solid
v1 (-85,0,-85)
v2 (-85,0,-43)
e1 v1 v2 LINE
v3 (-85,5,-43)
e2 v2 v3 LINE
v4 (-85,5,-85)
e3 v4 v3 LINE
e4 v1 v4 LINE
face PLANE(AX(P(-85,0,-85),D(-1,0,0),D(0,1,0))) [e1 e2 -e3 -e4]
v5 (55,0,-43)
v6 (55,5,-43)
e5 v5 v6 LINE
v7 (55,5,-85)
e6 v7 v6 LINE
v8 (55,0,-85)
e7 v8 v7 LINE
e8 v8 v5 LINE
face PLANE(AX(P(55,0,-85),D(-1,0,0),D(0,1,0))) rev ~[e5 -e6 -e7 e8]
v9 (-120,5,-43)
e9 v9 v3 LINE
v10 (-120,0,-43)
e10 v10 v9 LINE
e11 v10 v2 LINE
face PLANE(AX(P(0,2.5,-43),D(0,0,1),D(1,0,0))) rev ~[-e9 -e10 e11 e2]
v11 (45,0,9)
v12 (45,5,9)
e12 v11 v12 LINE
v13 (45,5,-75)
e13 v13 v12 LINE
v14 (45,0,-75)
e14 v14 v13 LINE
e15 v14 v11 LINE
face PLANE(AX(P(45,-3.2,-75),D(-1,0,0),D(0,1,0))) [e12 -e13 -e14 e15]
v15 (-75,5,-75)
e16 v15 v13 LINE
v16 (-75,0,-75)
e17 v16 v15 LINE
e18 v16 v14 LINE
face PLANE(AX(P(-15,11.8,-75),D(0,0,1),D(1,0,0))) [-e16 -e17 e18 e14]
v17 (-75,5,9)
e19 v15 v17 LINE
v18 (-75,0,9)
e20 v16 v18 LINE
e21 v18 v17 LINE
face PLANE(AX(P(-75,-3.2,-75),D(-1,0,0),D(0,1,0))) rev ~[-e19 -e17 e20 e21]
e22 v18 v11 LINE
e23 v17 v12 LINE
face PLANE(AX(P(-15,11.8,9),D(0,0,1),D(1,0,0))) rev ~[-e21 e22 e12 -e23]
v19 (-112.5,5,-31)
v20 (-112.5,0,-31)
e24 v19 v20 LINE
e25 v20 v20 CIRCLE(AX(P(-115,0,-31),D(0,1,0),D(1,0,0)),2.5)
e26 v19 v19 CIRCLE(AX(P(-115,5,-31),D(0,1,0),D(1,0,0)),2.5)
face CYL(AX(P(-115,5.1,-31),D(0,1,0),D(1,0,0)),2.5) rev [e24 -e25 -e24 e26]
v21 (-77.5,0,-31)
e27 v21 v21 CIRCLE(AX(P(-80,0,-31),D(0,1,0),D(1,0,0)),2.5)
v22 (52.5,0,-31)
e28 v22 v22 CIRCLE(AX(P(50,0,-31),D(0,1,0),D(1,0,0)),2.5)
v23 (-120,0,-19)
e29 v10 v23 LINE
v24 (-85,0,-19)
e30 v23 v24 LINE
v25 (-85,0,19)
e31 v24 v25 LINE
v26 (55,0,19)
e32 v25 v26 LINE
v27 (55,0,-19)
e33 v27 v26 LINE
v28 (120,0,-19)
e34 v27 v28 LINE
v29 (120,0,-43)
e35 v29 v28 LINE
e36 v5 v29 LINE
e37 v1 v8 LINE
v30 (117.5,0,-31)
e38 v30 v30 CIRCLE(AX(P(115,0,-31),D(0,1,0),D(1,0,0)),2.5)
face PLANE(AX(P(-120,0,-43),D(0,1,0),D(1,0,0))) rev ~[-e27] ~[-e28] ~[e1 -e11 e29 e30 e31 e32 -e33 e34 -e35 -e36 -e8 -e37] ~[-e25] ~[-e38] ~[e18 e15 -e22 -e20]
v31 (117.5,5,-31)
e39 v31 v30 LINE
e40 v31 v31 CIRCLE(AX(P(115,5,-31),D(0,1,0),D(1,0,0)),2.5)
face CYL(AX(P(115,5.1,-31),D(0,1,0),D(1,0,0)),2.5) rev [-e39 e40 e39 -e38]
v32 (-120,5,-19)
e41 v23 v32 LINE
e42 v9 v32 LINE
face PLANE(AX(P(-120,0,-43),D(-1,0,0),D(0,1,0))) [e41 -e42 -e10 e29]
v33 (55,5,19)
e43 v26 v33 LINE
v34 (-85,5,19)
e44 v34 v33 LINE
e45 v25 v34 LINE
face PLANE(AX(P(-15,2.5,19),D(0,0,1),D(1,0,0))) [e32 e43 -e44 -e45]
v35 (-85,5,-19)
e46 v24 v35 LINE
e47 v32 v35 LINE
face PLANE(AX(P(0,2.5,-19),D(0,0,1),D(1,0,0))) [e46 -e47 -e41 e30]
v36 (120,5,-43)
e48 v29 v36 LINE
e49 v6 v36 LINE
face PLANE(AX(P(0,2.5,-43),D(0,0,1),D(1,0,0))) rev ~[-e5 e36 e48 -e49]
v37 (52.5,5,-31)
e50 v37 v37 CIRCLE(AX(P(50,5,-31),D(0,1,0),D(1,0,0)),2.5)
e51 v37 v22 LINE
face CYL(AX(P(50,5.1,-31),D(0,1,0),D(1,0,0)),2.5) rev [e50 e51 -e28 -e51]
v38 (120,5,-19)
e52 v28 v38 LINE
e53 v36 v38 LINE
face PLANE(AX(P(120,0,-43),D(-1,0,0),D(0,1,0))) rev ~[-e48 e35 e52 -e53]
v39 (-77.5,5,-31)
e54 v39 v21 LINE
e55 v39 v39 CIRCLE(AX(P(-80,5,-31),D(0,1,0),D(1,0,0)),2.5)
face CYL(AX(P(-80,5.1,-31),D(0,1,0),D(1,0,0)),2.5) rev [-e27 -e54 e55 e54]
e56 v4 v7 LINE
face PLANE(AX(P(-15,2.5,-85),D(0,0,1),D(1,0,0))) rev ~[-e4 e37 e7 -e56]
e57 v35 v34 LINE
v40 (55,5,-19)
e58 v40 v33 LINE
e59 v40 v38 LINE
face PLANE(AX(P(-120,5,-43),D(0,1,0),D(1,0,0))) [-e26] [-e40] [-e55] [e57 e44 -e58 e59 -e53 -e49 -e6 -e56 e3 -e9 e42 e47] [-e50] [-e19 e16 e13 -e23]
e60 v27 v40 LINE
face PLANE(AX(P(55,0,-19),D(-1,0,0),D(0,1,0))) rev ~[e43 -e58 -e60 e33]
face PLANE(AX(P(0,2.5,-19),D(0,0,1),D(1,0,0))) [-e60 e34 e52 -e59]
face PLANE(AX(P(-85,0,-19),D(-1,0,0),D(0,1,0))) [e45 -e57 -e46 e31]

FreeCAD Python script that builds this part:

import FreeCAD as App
import Part
import Sketcher

V = App.Vector


def add_polygon(sketch, points):
    """Adds a closed chain of lines whose ends are joined by coincident constraints."""
    first, n = sketch.GeometryCount, len(points)
    for a, b in zip(points, points[1:] + points[:1]):
        sketch.addGeometry(Part.LineSegment(App.Vector(*a, 0), App.Vector(*b, 0)), False)
    for i in range(n):
        sketch.addConstraint(Sketcher.Constraint("Coincident", first + i, 2, first + (i + 1) % n, 1))

doc = App.newDocument("Part")
body = doc.addObject("PartDesign::Body", "Body")

sketch1 = body.newObject("Sketcher::SketchObject", "Sketch")
sketch1.AttachmentSupport = (doc.getObject("XY_Plane"), [""])
sketch1.MapMode = "FlatFace"
sketch1.AttachmentOffset = App.Placement(V(0, 0, -75), App.Rotation())
add_polygon(sketch1, [(-75, 27), (-75, -3), (45, -3), (45, 27)])
sketch1.addConstraint([
    Sketcher.Constraint("Vertical", 0),
    Sketcher.Constraint("Horizontal", 1),
    Sketcher.Constraint("Vertical", 2),
    Sketcher.Constraint("Horizontal", 3),
    Sketcher.Constraint("DistanceX", 1, 1, 1, 2, 120.0),
    Sketcher.Constraint("DistanceY", 0, 2, 0, 1, 30.0),
    Sketcher.Constraint("DistanceX", 0, 2, -1, 1, 75.0),
    Sketcher.Constraint("DistanceY", 0, 2, -1, 1, 3.2),
])
pad1 = body.newObject("PartDesign::Pad", "Pad")
pad1.Profile = sketch1
pad1.Length = 84
body2 = doc.addObject("PartDesign::Body", "Body001")

sketch2 = body2.newObject("Sketcher::SketchObject", "Sketch001")
sketch2.AttachmentSupport = (doc.getObject("XZ_Plane001"), [""])
sketch2.MapMode = "FlatFace"
sketch2.addGeometry(Part.Circle(V(115, -31, 0), V(0, 0, 1), 2.5), False)
sketch2.addConstraint([
    Sketcher.Constraint("Diameter", 0, 5.0),
    Sketcher.Constraint("DistanceX", -1, 1, 0, 3, 115.0),
    Sketcher.Constraint("DistanceY", 0, 3, -1, 1, 31.0),
])
pad2 = body2.newObject("PartDesign::Pad", "Pad001")
pad2.Profile = sketch2
pad2.Length = 10
body3 = doc.addObject("PartDesign::Body", "Body002")

sketch3 = body3.newObject("Sketcher::SketchObject", "Sketch002")
sketch3.AttachmentSupport = (doc.getObject("XZ_Plane002"), [""])
sketch3.MapMode = "FlatFace"
sketch3.addGeometry(Part.Circle(V(-80, -31, 0), V(0, 0, 1), 2.5), False)
sketch3.addConstraint([
    Sketcher.Constraint("Diameter", 0, 5.0),
    Sketcher.Constraint("DistanceX", 0, 3, -1, 1, 80.0),
    Sketcher.Constraint("DistanceY", 0, 3, -1, 1, 31.0),
])
pad3 = body3.newObject("PartDesign::Pad", "Pad002")
pad3.Profile = sketch3
pad3.Length = 10
body4 = doc.addObject("PartDesign::Body", "Body003")

sketch4 = body4.newObject("Sketcher::SketchObject", "Sketch003")
sketch4.AttachmentSupport = (doc.getObject("XZ_Plane003"), [""])
sketch4.MapMode = "FlatFace"
sketch4.addGeometry(Part.Circle(V(50, -31, 0), V(0, 0, 1), 2.5), False)
sketch4.addConstraint([
    Sketcher.Constraint("Diameter", 0, 5.0),
    Sketcher.Constraint("DistanceX", -1, 1, 0, 3, 50.0),
    Sketcher.Constraint("DistanceY", 0, 3, -1, 1, 31.0),
])
pad4 = body4.newObject("PartDesign::Pad", "Pad003")
pad4.Profile = sketch4
pad4.Length = 10
body5 = doc.addObject("PartDesign::Body", "Body004")

sketch5 = body5.newObject("Sketcher::SketchObject", "Sketch004")
sketch5.AttachmentSupport = (doc.getObject("XZ_Plane004"), [""])
sketch5.MapMode = "FlatFace"
sketch5.addGeometry(Part.Circle(V(-45.8, -56.3, 0), V(0, 0, 1), 2.5), False)
sketch5.addConstraint([
    Sketcher.Constraint("Diameter", 0, 5.0),
    Sketcher.Constraint("DistanceY", 0, 3, -1, 1, 56.3),
    Sketcher.Constraint("DistanceX", 0, 3, -1, 1, 45.75),
])
pad5 = body5.newObject("PartDesign::Pad", "Pad004")
pad5.Profile = sketch5
pad5.Length = 10
body6 = doc.addObject("PartDesign::Body", "Body005")

sketch6 = body6.newObject("Sketcher::SketchObject", "Sketch005")
sketch6.AttachmentSupport = (doc.getObject("XZ_Plane005"), [""])
sketch6.MapMode = "FlatFace"
sketch6.addGeometry(Part.Circle(V(-115, -31, 0), V(0, 0, 1), 2.5), False)
sketch6.addConstraint([
    Sketcher.Constraint("Diameter", 0, 5.0),
    Sketcher.Constraint("DistanceX", 0, 3, -1, 1, 115.0),
    Sketcher.Constraint("DistanceY", 0, 3, -1, 1, 31.0),
])
pad6 = body6.newObject("PartDesign::Pad", "Pad005")
pad6.Profile = sketch6
pad6.Length = 10
body7 = doc.addObject("PartDesign::Body", "Body006")
body7.AllowCompound = True

sketch7 = body7.newObject("Sketcher::SketchObject", "Sketch006")
sketch7.AttachmentSupport = (doc.getObject("XZ_Plane006"), [""])
sketch7.MapMode = "FlatFace"
sketch7.addGeometry(Part.Circle(V(-45.8, -1.3, 0), V(0, 0, 1), 2.5), False)
sketch7.addConstraint([
    Sketcher.Constraint("Diameter", 0, 5.0),
    Sketcher.Constraint("DistanceY", 0, 3, -1, 1, 1.3),
    Sketcher.Constraint("DistanceX", 0, 3, -1, 1, 45.75),
])
pad7 = body7.newObject("PartDesign::Pad", "Pad006")
pad7.Profile = sketch7
pad7.Length = 10
doc.recompute()

boolean = body7.newObject("PartDesign::Boolean", "Boolean")
boolean.Type = "Fuse"
boolean.addObjects([body2])
doc.recompute()

boolean2 = body7.newObject("PartDesign::Boolean", "Boolean001")
boolean2.Type = "Fuse"
boolean2.addObjects([body3])
doc.recompute()

boolean3 = body7.newObject("PartDesign::Boolean", "Boolean002")
boolean3.Type = "Fuse"
boolean3.addObjects([body4])
doc.recompute()

boolean4 = body7.newObject("PartDesign::Boolean", "Boolean003")
boolean4.Type = "Fuse"
boolean4.addObjects([body5])
doc.recompute()

boolean5 = body7.newObject("PartDesign::Boolean", "Boolean004")
boolean5.Type = "Fuse"
boolean5.addObjects([body6])
body8 = doc.addObject("PartDesign::Body", "Body007")
body8.AllowCompound = True
doc.recompute()

body7.Placement = App.Placement(V(0, 5.1, 0), App.Rotation(V(0, 0, 1), 0))
boolean6 = body8.newObject("PartDesign::Boolean", "Boolean005")
boolean6.Type = "Fuse"
boolean6.addObjects([body7])
body9 = doc.addObject("PartDesign::Body", "Body008")

sketch8 = body9.newObject("Sketcher::SketchObject", "Sketch007")
sketch8.AttachmentSupport = (doc.getObject("XY_Plane008"), [""])
sketch8.MapMode = "FlatFace"
sketch8.AttachmentOffset = App.Placement(V(0, 0, -43), App.Rotation())
add_polygon(sketch8, [(-120, 5), (-120, 0), (120, 0), (120, 5)])
sketch8.addConstraint([
    Sketcher.Constraint("Vertical", 0),
    Sketcher.Constraint("Horizontal", 1),
    Sketcher.Constraint("Vertical", 2),
    Sketcher.Constraint("Horizontal", 3),
    Sketcher.Constraint("Symmetric", 0, 2, 1, 2, -1, 1),
    Sketcher.Constraint("DistanceX", 1, 1, 1, 2, 240.0),
    Sketcher.Constraint("DistanceY", 0, 2, 0, 1, 5.0),
])
pad8 = body9.newObject("PartDesign::Pad", "Pad007")
pad8.Profile = sketch8
pad8.Length = 24
body10 = doc.addObject("PartDesign::Body", "Body009")

sketch9 = body10.newObject("Sketcher::SketchObject", "Sketch008")
sketch9.AttachmentSupport = (doc.getObject("XY_Plane009"), [""])
sketch9.MapMode = "FlatFace"
sketch9.AttachmentOffset = App.Placement(V(0, 0, -19), App.Rotation())
add_polygon(sketch9, [(-85, 5), (-85, 0), (55, 0), (55, 5)])
sketch9.addConstraint([
    Sketcher.Constraint("Vertical", 0),
    Sketcher.Constraint("Horizontal", 1),
    Sketcher.Constraint("Vertical", 2),
    Sketcher.Constraint("Horizontal", 3),
    Sketcher.Constraint("PointOnObject", 0, 2, -1),
    Sketcher.Constraint("DistanceX", 1, 1, 1, 2, 140.0),
    Sketcher.Constraint("DistanceY", 0, 2, 0, 1, 5.0),
    Sketcher.Constraint("DistanceX", 0, 2, -1, 1, 85.0),
])
pad9 = body10.newObject("PartDesign::Pad", "Pad008")
pad9.Profile = sketch9
pad9.Length = 38
body11 = doc.addObject("PartDesign::Body", "Body010")

sketch10 = body11.newObject("Sketcher::SketchObject", "Sketch009")
sketch10.AttachmentSupport = (doc.getObject("XY_Plane010"), [""])
sketch10.MapMode = "FlatFace"
sketch10.AttachmentOffset = App.Placement(V(0, 0, -85), App.Rotation())
add_polygon(sketch10, [(-85, 5), (-85, 0), (55, 0), (55, 5)])
sketch10.addConstraint([
    Sketcher.Constraint("Vertical", 0),
    Sketcher.Constraint("Horizontal", 1),
    Sketcher.Constraint("Vertical", 2),
    Sketcher.Constraint("Horizontal", 3),
    Sketcher.Constraint("PointOnObject", 0, 2, -1),
    Sketcher.Constraint("DistanceX", 1, 1, 1, 2, 140.0),
    Sketcher.Constraint("DistanceY", 0, 2, 0, 1, 5.0),
    Sketcher.Constraint("DistanceX", 0, 2, -1, 1, 85.0),
])
pad10 = body11.newObject("PartDesign::Pad", "Pad009")
pad10.Profile = sketch10
pad10.Length = 42
doc.recompute()

boolean7 = body11.newObject("PartDesign::Boolean", "Boolean006")
boolean7.Type = "Fuse"
boolean7.addObjects([body9])
doc.recompute()

boolean8 = body11.newObject("PartDesign::Boolean", "Boolean007")
boolean8.Type = "Fuse"
boolean8.addObjects([body10])
doc.recompute()

boolean9 = body11.newObject("PartDesign::Boolean", "Boolean008")
boolean9.Type = "Cut"
boolean9.addObjects([body8])
doc.recompute()

boolean10 = body11.newObject("PartDesign::Boolean", "Boolean009")
boolean10.Type = "Cut"
boolean10.addObjects([body])

doc.recompute()
